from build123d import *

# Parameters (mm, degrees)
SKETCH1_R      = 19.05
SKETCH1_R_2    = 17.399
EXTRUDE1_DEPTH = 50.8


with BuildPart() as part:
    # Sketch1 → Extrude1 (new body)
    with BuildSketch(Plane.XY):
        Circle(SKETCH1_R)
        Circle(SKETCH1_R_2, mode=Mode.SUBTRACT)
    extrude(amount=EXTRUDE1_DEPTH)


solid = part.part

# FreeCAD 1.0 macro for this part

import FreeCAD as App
import Part
import Sketcher
from FreeCAD import Vector
Q = App.Units.Quantity

doc = App.newDocument("Part")
body = doc.addObject("PartDesign::Body", "Body")

# Sketch on XY plane
sketch1 = doc.addObject("Sketcher::SketchObject", "Sketch")
body.addObject(sketch1)
sketch1.AttachmentSupport = (doc.XY_Plane, [""])
sketch1.MapMode = "FlatFace"
sketch1.addGeometry(Part.Circle(Vector(0, 0, 0), Vector(0, 0, 1), 19.05), False)
sketch1.addGeometry(Part.Circle(Vector(0, 0, 0), Vector(0, 0, 1), 17.399), False)
sketch1.addConstraint(Sketcher.Constraint("Coincident", 0, 3, -1, 1))
sketch1.addConstraint(Sketcher.Constraint("Coincident", 1, 3, -1, 1))
sketch1.addConstraint(Sketcher.Constraint("Diameter", 0, Q("1.5 in")))
sketch1.addConstraint(Sketcher.Constraint("Diameter", 1, Q("1.37 in")))
pad1 = doc.addObject("PartDesign::Pad", "Pad")
body.addObject(pad1)
pad1.Profile = sketch1
pad1.Length = Q("2 in")

doc.recompute()
